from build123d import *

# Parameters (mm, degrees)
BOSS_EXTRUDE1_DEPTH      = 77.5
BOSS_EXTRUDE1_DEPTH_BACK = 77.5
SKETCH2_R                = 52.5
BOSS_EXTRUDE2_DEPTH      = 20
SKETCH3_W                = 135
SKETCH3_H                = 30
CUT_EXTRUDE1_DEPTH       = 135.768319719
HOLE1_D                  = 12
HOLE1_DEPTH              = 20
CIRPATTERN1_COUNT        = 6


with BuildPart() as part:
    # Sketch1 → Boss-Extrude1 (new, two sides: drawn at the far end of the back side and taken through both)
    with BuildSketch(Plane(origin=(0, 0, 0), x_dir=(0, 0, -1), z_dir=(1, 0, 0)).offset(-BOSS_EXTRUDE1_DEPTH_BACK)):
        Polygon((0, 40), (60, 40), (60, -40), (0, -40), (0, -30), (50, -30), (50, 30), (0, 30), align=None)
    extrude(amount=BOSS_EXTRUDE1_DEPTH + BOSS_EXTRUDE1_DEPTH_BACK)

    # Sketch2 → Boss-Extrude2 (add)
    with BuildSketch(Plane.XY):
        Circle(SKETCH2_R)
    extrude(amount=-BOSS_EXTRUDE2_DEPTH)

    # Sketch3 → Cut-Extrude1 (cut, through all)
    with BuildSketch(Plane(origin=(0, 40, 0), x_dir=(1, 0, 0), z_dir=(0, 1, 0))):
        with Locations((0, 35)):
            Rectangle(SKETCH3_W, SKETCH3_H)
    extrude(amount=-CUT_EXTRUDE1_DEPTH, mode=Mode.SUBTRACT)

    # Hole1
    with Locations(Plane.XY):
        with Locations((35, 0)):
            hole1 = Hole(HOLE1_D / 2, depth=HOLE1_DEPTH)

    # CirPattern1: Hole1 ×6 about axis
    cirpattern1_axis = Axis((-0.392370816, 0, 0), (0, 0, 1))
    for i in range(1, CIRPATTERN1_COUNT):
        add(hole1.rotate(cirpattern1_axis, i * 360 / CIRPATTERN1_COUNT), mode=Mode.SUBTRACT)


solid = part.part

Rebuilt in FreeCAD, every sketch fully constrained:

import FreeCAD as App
import Part
import Sketcher

V = App.Vector

doc = App.newDocument("Part")
params = doc.addObject("Spreadsheet::Sheet", "Params")
for row, (alias, value) in enumerate([
    ("sketch1_width", "10 mm"),
    ("sketch1_width2", "60 mm"),
    ("sketch1_height", "50 mm"),
    ("pad1_length", "77.5 mm"),
    ("pad1_length2", "77.5 mm"),
    ("sketch2_diameter", "105 mm"),
    ("pad2_length", "20 mm"),
    ("sketch3_width", "135 mm"),
    ("sketch3_height", "30 mm"),
    ("sketch4_diameter", "12 mm"),
    ("hole_diameter", "12 mm"),
    ("hole_depth", "20 mm"),
], start=1):
    params.set(f"A{row}", alias)
    params.set(f"B{row}", "=" + value)
    params.setAlias(f"B{row}", alias)

body = doc.addObject("PartDesign::Body", "Body")

sketch1 = body.newObject("Sketcher::SketchObject", "Sketch")
sketch1.AttachmentSupport = (doc.getObject("YZ_Plane"), [""])
sketch1.MapMode = "FlatFace"
sketch1.addGeometry([
    Part.LineSegment(V(40, -60, 0), V(40, 0, 0)),
    Part.LineSegment(V(40, 0, 0), V(30, 0, 0)),
    Part.LineSegment(V(30, 0, 0), V(30, -50, 0)),
    Part.LineSegment(V(30, -50, 0), V(-30, -50, 0)),
    Part.LineSegment(V(-30, -50, 0), V(-30, 0, 0)),
    Part.LineSegment(V(-30, 0, 0), V(-40, 0, 0)),
    Part.LineSegment(V(-40, 0, 0), V(-40, -60, 0)),
    Part.LineSegment(V(-40, -60, 0), V(40, -60, 0)),
], False)
sketch1.addConstraint([
    Sketcher.Constraint("Coincident", 0, 2, 1, 1),
    Sketcher.Constraint("Coincident", 1, 2, 2, 1),
    Sketcher.Constraint("Coincident", 2, 2, 3, 1),
    Sketcher.Constraint("Coincident", 3, 2, 4, 1),
    Sketcher.Constraint("Coincident", 4, 2, 5, 1),
    Sketcher.Constraint("Coincident", 5, 2, 6, 1),
    Sketcher.Constraint("Coincident", 6, 2, 7, 1),
    Sketcher.Constraint("Coincident", 7, 2, 0, 1),
    Sketcher.Constraint("Vertical", 0),
    Sketcher.Constraint("Horizontal", 1),
    Sketcher.Constraint("Vertical", 2),
    Sketcher.Constraint("Horizontal", 3),
    Sketcher.Constraint("Vertical", 4),
    Sketcher.Constraint("Horizontal", 5),
    Sketcher.Constraint("Vertical", 6),
    Sketcher.Constraint("Horizontal", 7),
    Sketcher.Constraint("Symmetric", 1, 2, 4, 2, -1, 1),
    Sketcher.Constraint("Symmetric", 0, 2, 5, 2, -2),
    Sketcher.Constraint("Equal", 3, 0),
    Sketcher.Constraint("DistanceX", 1, 2, 1, 1, 10.0),
    Sketcher.Constraint("DistanceX", 3, 2, 3, 1, 60.0),
    Sketcher.Constraint("DistanceY", 2, 2, 2, 1, 50.0),
])
sketch1.setExpression("Constraints[19]", "Params.sketch1_width")
sketch1.setExpression("Constraints[20]", "Params.sketch1_width2")
sketch1.setExpression("Constraints[21]", "Params.sketch1_height")
pad1 = body.newObject("PartDesign::Pad", "Pad")
pad1.Profile = sketch1
pad1.Type = "TwoLengths"
pad1.setExpression("Length", "Params.pad1_length")
pad1.setExpression("Length2", "Params.pad1_length2")

sketch2 = body.newObject("Sketcher::SketchObject", "Sketch001")
sketch2.AttachmentSupport = (doc.getObject("XY_Plane"), [""])
sketch2.MapMode = "FlatFace"
sketch2.addGeometry(Part.Circle(V(0, 0, 0), V(0, 0, 1), 52), False)
sketch2.addConstraint([
    Sketcher.Constraint("Coincident", 0, 3, -1, 1),
    Sketcher.Constraint("Diameter", 0, 105.0),
])
sketch2.setExpression("Constraints[1]", "Params.sketch2_diameter")
pad2 = body.newObject("PartDesign::Pad", "Pad001")
pad2.Profile = sketch2
pad2.setExpression("Length", "Params.pad2_length")
pad2.Reversed = True

sketch3 = body.newObject("Sketcher::SketchObject", "Sketch002")
sketch3.AttachmentSupport = (doc.getObject("XZ_Plane"), [""])
sketch3.MapMode = "FlatFace"
sketch3.AttachmentOffset = App.Placement(V(0, 0, -40), App.Rotation())
sketch3.addGeometry([
    Part.LineSegment(V(-68, -50, 0), V(-68, -20, 0)),
    Part.LineSegment(V(-68, -20, 0), V(68, -20, 0)),
    Part.LineSegment(V(68, -20, 0), V(68, -50, 0)),
    Part.LineSegment(V(68, -50, 0), V(-68, -50, 0)),
], False)
sketch3.addConstraint([
    Sketcher.Constraint("Coincident", 0, 2, 1, 1),
    Sketcher.Constraint("Coincident", 1, 2, 2, 1),
    Sketcher.Constraint("Coincident", 2, 2, 3, 1),
    Sketcher.Constraint("Coincident", 3, 2, 0, 1),
    Sketcher.Constraint("Vertical", 0),
    Sketcher.Constraint("Horizontal", 1),
    Sketcher.Constraint("Vertical", 2),
    Sketcher.Constraint("Horizontal", 3),
    Sketcher.Constraint("DistanceX", 1, 1, 1, 2, 135.0),
    Sketcher.Constraint("DistanceY", 0, 1, 0, 2, 30.0),
    Sketcher.Constraint("DistanceY", 0, 2, -1, 1, 20.0),
    Sketcher.Constraint("DistanceX", 0, 2, -1, 1, 67.5),
])
sketch3.setExpression("Constraints[8]", "Params.sketch3_width")
sketch3.setExpression("Constraints[9]", "Params.sketch3_height")
pocket1 = body.newObject("PartDesign::Pocket", "Pocket")
pocket1.Profile = sketch3
pocket1.Type = "ThroughAll"
pocket1.Reversed = True

sketch4 = body.newObject("Sketcher::SketchObject", "Sketch003")
sketch4.AttachmentSupport = (doc.getObject("XY_Plane"), [""])
sketch4.MapMode = "FlatFace"
sketch4.addGeometry(Part.Circle(V(35, 0, 0), V(0, 0, 1), 6), False)
sketch4.addConstraint([
    Sketcher.Constraint("PointOnObject", 0, 3, -1),
    Sketcher.Constraint("Diameter", 0, 12.0),
    Sketcher.Constraint("DistanceX", -1, 1, 0, 3, 35.0),
])
sketch4.setExpression("Constraints[1]", "Params.sketch4_diameter")
doc.recompute()
hole = body.newObject("PartDesign::Hole", "Hole")
hole.Profile = sketch4
hole.ThreadType = "None"
hole.setExpression("Diameter", "Params.hole_diameter")
hole.DepthType = "Dimension"
hole.setExpression("Depth", "Params.hole_depth")
hole.DrillPoint = "Flat"
doc.recompute()

datumline = body.newObject("PartDesign::Line", "DatumLine")
datumline.Placement = App.Placement(V(-0.392371, 0, 0), App.Rotation(V(0, 0, 1), V(0, 0, 1)))
polarpattern = body.newObject("PartDesign::PolarPattern", "PolarPattern")
polarpattern.Originals = [hole]
polarpattern.Axis = (datumline, [""])
polarpattern.Angle = 360
polarpattern.Occurrences = 6
body.Tip = polarpattern

doc.recompute()
